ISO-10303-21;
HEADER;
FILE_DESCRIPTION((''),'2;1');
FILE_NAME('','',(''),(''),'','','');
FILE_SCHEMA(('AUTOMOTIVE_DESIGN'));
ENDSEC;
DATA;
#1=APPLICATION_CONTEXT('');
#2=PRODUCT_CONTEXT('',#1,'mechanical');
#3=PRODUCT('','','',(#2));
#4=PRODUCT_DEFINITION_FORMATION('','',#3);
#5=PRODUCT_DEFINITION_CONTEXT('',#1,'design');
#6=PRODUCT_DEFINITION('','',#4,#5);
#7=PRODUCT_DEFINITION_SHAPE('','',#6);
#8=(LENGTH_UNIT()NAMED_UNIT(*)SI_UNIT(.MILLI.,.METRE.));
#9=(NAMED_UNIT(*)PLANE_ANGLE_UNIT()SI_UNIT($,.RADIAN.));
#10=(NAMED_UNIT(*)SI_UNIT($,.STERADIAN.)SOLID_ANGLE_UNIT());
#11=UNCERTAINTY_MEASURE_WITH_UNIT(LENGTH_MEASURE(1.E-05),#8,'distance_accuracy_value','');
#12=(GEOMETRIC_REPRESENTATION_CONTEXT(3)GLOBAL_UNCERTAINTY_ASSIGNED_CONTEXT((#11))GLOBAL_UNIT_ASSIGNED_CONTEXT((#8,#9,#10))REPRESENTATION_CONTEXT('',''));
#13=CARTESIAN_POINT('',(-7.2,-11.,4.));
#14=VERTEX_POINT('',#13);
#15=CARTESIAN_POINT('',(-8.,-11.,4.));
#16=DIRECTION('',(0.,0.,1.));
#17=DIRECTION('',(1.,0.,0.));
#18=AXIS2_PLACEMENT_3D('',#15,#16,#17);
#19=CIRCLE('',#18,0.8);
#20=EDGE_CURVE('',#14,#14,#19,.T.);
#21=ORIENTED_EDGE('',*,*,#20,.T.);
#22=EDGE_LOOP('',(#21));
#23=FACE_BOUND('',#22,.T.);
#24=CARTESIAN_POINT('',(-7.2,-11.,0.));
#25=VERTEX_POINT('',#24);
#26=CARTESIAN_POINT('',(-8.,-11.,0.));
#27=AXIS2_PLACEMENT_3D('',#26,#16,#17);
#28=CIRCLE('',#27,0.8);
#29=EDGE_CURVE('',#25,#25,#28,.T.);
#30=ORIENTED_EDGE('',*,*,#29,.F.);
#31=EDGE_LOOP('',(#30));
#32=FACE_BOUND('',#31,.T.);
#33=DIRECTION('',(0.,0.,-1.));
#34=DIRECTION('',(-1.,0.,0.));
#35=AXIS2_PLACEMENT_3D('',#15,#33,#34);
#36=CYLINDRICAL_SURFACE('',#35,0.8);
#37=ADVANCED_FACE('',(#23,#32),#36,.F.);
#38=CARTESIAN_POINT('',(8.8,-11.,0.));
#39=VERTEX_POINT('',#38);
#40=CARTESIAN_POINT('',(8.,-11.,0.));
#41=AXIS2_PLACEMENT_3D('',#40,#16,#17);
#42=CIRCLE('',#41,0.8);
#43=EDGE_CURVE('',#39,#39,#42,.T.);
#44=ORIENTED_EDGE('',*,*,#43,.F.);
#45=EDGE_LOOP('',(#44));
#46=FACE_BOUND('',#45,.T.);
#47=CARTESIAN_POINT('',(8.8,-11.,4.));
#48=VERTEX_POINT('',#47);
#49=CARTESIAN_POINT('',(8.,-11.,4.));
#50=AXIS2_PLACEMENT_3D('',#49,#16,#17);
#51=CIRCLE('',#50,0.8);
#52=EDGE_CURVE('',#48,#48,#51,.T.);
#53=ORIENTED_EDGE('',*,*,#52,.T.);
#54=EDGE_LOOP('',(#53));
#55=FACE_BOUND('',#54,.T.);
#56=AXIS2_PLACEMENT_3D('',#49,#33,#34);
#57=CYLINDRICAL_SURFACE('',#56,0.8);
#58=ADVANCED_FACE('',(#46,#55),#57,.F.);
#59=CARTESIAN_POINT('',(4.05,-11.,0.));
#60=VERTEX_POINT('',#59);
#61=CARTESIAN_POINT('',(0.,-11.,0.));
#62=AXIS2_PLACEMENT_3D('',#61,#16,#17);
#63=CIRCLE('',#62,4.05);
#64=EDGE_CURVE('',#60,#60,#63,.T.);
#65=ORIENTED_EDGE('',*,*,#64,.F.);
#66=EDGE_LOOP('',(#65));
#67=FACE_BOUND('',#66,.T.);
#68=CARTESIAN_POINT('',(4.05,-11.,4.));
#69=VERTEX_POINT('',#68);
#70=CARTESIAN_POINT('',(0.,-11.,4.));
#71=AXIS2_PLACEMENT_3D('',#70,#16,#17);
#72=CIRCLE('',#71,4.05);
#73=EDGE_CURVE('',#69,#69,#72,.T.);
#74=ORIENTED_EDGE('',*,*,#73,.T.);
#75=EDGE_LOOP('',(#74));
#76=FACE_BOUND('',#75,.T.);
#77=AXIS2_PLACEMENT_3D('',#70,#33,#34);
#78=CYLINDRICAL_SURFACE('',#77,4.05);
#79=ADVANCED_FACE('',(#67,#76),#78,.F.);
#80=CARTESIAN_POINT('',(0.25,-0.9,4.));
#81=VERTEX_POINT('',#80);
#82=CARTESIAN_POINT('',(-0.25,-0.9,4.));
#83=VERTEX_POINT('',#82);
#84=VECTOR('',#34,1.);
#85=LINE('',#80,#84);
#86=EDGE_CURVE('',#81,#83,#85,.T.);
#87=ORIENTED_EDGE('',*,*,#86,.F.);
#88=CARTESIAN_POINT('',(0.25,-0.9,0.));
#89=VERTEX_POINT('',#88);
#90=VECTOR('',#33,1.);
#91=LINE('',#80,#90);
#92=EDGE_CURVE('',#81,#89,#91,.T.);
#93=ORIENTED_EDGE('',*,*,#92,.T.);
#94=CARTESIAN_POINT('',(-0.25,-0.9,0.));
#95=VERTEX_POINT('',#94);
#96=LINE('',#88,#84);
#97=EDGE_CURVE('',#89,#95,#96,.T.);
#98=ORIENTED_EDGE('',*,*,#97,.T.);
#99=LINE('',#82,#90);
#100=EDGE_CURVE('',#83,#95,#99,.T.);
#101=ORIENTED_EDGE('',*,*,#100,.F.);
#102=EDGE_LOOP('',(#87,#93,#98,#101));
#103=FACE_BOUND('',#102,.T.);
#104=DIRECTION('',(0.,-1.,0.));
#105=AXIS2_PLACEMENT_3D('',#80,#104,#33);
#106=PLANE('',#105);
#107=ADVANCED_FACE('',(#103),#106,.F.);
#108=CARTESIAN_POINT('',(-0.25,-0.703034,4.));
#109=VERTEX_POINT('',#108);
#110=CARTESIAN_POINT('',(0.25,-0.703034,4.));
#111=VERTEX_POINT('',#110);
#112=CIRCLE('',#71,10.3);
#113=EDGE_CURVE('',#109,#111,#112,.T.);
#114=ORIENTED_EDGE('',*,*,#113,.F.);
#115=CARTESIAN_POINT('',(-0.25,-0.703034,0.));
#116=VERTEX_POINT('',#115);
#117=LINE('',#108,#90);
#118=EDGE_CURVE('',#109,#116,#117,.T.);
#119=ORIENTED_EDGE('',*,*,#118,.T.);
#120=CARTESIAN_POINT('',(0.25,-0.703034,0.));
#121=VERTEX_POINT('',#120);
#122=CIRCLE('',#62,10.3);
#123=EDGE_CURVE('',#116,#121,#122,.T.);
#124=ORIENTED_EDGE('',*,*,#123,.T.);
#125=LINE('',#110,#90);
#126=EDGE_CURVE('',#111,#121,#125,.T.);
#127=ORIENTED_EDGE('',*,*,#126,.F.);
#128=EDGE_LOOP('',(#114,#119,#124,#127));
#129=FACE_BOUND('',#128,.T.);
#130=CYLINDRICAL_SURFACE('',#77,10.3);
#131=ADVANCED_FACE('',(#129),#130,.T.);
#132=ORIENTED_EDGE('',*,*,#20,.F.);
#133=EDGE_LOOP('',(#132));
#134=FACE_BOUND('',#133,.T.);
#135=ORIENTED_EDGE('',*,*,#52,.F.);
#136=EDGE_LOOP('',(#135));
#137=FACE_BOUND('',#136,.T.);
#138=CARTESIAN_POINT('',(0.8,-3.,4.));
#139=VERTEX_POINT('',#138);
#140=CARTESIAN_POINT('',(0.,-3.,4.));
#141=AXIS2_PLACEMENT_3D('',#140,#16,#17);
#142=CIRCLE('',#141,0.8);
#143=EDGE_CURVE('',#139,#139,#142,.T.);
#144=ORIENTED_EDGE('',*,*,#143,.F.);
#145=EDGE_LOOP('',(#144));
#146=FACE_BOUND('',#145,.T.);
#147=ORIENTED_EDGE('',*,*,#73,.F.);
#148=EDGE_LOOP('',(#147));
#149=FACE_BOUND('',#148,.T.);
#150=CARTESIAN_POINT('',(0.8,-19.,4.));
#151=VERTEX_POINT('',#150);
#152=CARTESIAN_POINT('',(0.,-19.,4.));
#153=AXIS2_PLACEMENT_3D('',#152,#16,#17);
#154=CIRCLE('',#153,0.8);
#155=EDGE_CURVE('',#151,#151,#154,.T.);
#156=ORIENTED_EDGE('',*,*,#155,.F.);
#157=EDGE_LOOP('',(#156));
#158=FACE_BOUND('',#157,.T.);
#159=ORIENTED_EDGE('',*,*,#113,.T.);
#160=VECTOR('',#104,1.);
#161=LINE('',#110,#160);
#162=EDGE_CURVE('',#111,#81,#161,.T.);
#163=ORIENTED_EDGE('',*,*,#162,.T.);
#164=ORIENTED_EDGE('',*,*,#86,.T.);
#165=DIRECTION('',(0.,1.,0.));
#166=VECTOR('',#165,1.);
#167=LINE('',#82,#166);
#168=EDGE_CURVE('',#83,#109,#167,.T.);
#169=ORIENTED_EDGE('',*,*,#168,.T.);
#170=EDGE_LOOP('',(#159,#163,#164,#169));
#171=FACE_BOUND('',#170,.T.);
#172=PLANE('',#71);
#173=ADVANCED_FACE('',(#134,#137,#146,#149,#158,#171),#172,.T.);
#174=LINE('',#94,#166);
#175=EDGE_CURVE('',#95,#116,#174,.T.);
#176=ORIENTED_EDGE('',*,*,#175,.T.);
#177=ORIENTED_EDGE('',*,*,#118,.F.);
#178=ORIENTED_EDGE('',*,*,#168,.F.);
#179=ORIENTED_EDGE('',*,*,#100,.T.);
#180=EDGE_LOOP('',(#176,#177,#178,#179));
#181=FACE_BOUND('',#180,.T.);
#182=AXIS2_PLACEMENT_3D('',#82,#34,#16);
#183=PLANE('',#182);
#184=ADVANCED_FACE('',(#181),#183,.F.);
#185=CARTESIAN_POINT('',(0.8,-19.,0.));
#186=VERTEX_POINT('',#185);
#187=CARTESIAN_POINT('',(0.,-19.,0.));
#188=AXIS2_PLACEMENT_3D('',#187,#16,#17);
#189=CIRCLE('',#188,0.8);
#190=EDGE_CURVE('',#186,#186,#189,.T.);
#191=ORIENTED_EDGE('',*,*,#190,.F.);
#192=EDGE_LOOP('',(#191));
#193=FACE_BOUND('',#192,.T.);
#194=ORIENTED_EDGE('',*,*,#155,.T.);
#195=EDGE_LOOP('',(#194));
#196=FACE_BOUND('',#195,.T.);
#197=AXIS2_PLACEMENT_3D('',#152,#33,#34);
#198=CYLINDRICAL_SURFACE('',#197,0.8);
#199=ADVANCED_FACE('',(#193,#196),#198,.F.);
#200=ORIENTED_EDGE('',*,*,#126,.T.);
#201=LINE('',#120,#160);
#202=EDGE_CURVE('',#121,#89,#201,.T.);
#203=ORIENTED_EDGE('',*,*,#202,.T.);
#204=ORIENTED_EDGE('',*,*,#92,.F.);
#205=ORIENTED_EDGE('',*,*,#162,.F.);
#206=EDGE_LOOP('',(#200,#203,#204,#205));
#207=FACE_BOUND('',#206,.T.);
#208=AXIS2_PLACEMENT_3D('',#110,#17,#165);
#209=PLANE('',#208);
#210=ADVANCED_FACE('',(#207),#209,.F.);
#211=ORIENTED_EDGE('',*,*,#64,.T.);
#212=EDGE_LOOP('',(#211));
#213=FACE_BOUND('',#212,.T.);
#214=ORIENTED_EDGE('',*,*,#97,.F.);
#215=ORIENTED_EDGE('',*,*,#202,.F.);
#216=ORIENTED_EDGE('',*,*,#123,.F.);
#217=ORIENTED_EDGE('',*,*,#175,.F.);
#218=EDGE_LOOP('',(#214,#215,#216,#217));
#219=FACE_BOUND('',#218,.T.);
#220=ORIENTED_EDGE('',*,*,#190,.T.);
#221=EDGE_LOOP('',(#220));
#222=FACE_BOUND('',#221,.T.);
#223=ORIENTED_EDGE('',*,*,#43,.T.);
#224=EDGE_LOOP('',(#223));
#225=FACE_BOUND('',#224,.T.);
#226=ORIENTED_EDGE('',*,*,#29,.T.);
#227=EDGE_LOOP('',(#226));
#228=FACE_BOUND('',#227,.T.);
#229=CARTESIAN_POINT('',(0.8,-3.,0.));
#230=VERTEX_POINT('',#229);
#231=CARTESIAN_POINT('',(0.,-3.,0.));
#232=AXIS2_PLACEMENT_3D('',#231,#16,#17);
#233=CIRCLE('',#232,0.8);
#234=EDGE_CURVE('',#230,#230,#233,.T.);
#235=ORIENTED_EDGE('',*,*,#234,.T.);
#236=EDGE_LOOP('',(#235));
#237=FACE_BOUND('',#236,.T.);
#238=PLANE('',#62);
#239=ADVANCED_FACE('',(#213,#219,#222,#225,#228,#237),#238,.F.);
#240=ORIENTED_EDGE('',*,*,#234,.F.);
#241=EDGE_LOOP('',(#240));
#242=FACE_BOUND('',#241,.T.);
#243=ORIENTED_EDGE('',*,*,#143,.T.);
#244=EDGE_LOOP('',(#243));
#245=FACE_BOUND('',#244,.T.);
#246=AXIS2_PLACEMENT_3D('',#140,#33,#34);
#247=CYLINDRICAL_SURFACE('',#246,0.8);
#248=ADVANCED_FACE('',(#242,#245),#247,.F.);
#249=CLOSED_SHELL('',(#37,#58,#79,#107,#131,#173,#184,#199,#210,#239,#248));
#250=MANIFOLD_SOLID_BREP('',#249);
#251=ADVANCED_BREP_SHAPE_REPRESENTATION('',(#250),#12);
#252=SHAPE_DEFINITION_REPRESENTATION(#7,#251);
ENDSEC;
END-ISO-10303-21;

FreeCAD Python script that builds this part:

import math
import FreeCAD as App
import Part
import Sketcher

doc = App.newDocument("Part")
params = doc.addObject("Spreadsheet::Sheet", "Params")
for row, (alias, value) in enumerate([
    ("sketch1_diameter", "1.6 mm"),
    ("sketch1_diameter2", "8.1 mm"),
    ("sketch1_radius", "10.3 mm"),
    ("sketch1_width", "0.5 mm"),
    ("pad1_length", "4 mm"),
], start=1):
    params.set(f"A{row}", alias)
    params.set(f"B{row}", "=" + value)
    params.setAlias(f"B{row}", alias)

body = doc.addObject("PartDesign::Body", "Body")

sketch1 = body.newObject("Sketcher::SketchObject", "Sketch")
sketch1.AttachmentSupport = (doc.getObject("XY_Plane"), [""])
sketch1.MapMode = "FlatFace"
sketch1.addGeometry([
    Part.LineSegment(App.Vector(-0.25, -0.9, 0), App.Vector(-0.25, -0.703034, 0)),
    Part.ArcOfCircle(Part.Circle(App.Vector(0, -11, 0), App.Vector(0, 0, 1), 10.3), math.radians(91.390811), math.radians(180)),
    Part.ArcOfCircle(Part.Circle(App.Vector(0, -11, 0), App.Vector(0, 0, 1), 10.3), math.radians(180), math.radians(360)),
    Part.ArcOfCircle(Part.Circle(App.Vector(0, -11, 0), App.Vector(0, 0, 1), 10.3), math.radians(0), math.radians(88.609189)),
    Part.LineSegment(App.Vector(0.25, -0.703034, 0), App.Vector(0.25, -0.9, 0)),
    Part.LineSegment(App.Vector(0.25, -0.9, 0), App.Vector(-0.25, -0.9, 0)),
    Part.Circle(App.Vector(0, -19, 0), App.Vector(0, 0, 1), 0.8),
    Part.Circle(App.Vector(-8, -11, 0), App.Vector(0, 0, 1), 0.8),
    Part.Circle(App.Vector(0, -11, 0), App.Vector(0, 0, 1), 4.05),
    Part.Circle(App.Vector(8, -11, 0), App.Vector(0, 0, 1), 0.8),
    Part.Circle(App.Vector(0, -3, 0), App.Vector(0, 0, 1), 0.8),
], False)
sketch1.addConstraint([
    Sketcher.Constraint("Coincident", 0, 2, 1, 1),
    Sketcher.Constraint("Tangent", 1, 2, 2, 1),
    Sketcher.Constraint("Tangent", 2, 2, 3, 1),
    Sketcher.Constraint("Coincident", 3, 2, 4, 1),
    Sketcher.Constraint("Coincident", 4, 2, 5, 1),
    Sketcher.Constraint("Coincident", 5, 2, 0, 1),
    Sketcher.Constraint("Vertical", 0),
    Sketcher.Constraint("Vertical", 4),
    Sketcher.Constraint("Horizontal", 5),
    Sketcher.Constraint("Coincident", 8, 3, 1, 3),
    Sketcher.Constraint("Equal", 1, 2),
    Sketcher.Constraint("Equal", 2, 3),
    Sketcher.Constraint("Equal", 6, 7),
    Sketcher.Constraint("Equal", 7, 9),
    Sketcher.Constraint("Equal", 9, 10),
    Sketcher.Constraint("Symmetric", 7, 3, 9, 3, -2),
    Sketcher.Constraint("Symmetric", 1, 2, 2, 2, -2),
    Sketcher.Constraint("PointOnObject", 6, 3, -2),
    Sketcher.Constraint("PointOnObject", 10, 3, -2),
    Sketcher.Constraint("Horizontal", 3, 3, 7, 3),
    Sketcher.Constraint("Horizontal", 9, 3, 1, 2),
    Sketcher.Constraint("Horizontal", 0, 2, 3, 2),
    Sketcher.Constraint("Diameter", 6, 1.6),
    Sketcher.Constraint("Diameter", 8, 8.1),
    Sketcher.Constraint("Radius", 1, 10.3),
    Sketcher.Constraint("DistanceX", 5, 2, 5, 1, 0.5),
    Sketcher.Constraint("DistanceY", 1, 3, -1, 1, 11.0),
    Sketcher.Constraint("DistanceY", 6, 3, -1, 1, 19.0),
    Sketcher.Constraint("DistanceX", 7, 3, -1, 1, 8.0),
    Sketcher.Constraint("DistanceY", 10, 3, -1, 1, 3.0),
    Sketcher.Constraint("DistanceY", 4, 2, -1, 1, 0.9),
])
sketch1.setExpression("Constraints[22]", "Params.sketch1_diameter")
sketch1.setExpression("Constraints[23]", "Params.sketch1_diameter2")
sketch1.setExpression("Constraints[24]", "Params.sketch1_radius")
sketch1.setExpression("Constraints[25]", "Params.sketch1_width")
pad1 = body.newObject("PartDesign::Pad", "Pad")
pad1.Profile = sketch1
pad1.setExpression("Length", "Params.pad1_length")

doc.recompute()
